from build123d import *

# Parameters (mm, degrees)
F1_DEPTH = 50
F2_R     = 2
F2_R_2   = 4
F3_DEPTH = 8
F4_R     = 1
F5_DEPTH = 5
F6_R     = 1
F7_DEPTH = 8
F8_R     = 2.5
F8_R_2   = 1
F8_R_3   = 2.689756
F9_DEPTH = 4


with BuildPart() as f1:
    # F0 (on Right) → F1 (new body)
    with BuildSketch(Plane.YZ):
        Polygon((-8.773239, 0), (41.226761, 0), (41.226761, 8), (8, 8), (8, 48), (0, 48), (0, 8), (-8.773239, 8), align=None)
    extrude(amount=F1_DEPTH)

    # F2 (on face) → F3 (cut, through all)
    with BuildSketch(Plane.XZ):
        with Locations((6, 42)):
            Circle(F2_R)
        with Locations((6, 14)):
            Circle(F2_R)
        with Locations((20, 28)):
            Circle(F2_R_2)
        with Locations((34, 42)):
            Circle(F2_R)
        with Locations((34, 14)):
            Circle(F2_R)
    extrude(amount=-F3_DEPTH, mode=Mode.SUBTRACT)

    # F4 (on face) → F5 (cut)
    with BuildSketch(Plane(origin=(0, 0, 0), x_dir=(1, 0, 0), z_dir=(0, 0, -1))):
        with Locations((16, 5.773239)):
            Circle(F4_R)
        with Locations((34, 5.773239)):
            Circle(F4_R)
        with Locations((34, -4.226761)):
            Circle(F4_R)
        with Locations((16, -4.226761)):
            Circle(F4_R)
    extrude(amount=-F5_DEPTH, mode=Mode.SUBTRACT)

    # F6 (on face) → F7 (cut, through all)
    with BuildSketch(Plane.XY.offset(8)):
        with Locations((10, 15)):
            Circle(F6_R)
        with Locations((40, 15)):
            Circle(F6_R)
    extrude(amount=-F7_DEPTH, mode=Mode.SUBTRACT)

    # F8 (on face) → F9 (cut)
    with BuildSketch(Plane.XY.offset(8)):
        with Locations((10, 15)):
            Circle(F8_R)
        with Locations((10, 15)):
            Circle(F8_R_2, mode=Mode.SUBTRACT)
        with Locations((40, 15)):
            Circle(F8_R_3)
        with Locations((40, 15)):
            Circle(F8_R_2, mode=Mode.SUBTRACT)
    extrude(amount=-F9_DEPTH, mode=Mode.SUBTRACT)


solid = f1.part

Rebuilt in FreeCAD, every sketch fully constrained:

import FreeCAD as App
import Part
import Sketcher
Q = App.Units.Quantity

doc = App.newDocument("Part")
body = doc.addObject("PartDesign::Body", "Body")

sketch1 = body.newObject("Sketcher::SketchObject", "Sketch")
sketch1.AttachmentSupport = (doc.getObject("YZ_Plane"), [""])
sketch1.MapMode = "FlatFace"
sketch1.addGeometry([
    Part.LineSegment(App.Vector(-9, 0, 0), App.Vector(41, 0, 0)),
    Part.LineSegment(App.Vector(41, 0, 0), App.Vector(41, 8, 0)),
    Part.LineSegment(App.Vector(41, 8, 0), App.Vector(8, 8, 0)),
    Part.LineSegment(App.Vector(8, 8, 0), App.Vector(8, 48, 0)),
    Part.LineSegment(App.Vector(8, 48, 0), App.Vector(0, 48, 0)),
    Part.LineSegment(App.Vector(0, 48, 0), App.Vector(0, 8, 0)),
    Part.LineSegment(App.Vector(0, 8, 0), App.Vector(-9, 8, 0)),
    Part.LineSegment(App.Vector(-9, 8, 0), App.Vector(-9, 0, 0)),
], False)
sketch1.addConstraint([
    Sketcher.Constraint("Coincident", 0, 2, 1, 1),
    Sketcher.Constraint("Coincident", 1, 2, 2, 1),
    Sketcher.Constraint("Coincident", 2, 2, 3, 1),
    Sketcher.Constraint("Coincident", 3, 2, 4, 1),
    Sketcher.Constraint("Coincident", 4, 2, 5, 1),
    Sketcher.Constraint("Coincident", 5, 2, 6, 1),
    Sketcher.Constraint("Coincident", 6, 2, 7, 1),
    Sketcher.Constraint("Coincident", 7, 2, 0, 1),
    Sketcher.Constraint("Horizontal", 0),
    Sketcher.Constraint("Vertical", 1),
    Sketcher.Constraint("Horizontal", 2),
    Sketcher.Constraint("Vertical", 3),
    Sketcher.Constraint("Horizontal", 4),
    Sketcher.Constraint("Vertical", 5),
    Sketcher.Constraint("Horizontal", 6),
    Sketcher.Constraint("Vertical", 7),
    Sketcher.Constraint("PointOnObject", 0, 2, -1),
    Sketcher.Constraint("PointOnObject", 4, 2, -2),
    Sketcher.Constraint("Horizontal", 2, 2, 5, 2),
    Sketcher.Constraint("Equal", 4, 1),
    Sketcher.Constraint("DistanceX", 0, 1, 0, 2, Q("50 mm")),
    Sketcher.Constraint("DistanceX", 4, 2, 4, 1, Q("8 mm")),
    Sketcher.Constraint("DistanceY", 3, 1, 3, 2, Q("40 mm")),
    Sketcher.Constraint("DistanceX", 2, 2, 2, 1, Q("33.226761 mm")),
])
pad1 = body.newObject("PartDesign::Pad", "Pad")
pad1.Profile = sketch1
pad1.Length = 50

sketch2 = body.newObject("Sketcher::SketchObject", "Sketch001")
sketch2.AttachmentSupport = (doc.getObject("XZ_Plane"), [""])
sketch2.MapMode = "FlatFace"
sketch2.addGeometry([
    Part.Circle(App.Vector(6, 42, 0), App.Vector(0, 0, 1), 2),
    Part.Circle(App.Vector(6, 14, 0), App.Vector(0, 0, 1), 2),
    Part.Circle(App.Vector(20, 28, 0), App.Vector(0, 0, 1), 4),
    Part.Circle(App.Vector(34, 42, 0), App.Vector(0, 0, 1), 2),
    Part.Circle(App.Vector(34, 14, 0), App.Vector(0, 0, 1), 2),
], False)
sketch2.addConstraint([
    Sketcher.Constraint("Equal", 0, 1),
    Sketcher.Constraint("Equal", 1, 3),
    Sketcher.Constraint("Equal", 3, 4),
    Sketcher.Constraint("Horizontal", 0, 3, 3, 3),
    Sketcher.Constraint("Horizontal", 1, 3, 4, 3),
    Sketcher.Constraint("Vertical", 0, 3, 1, 3),
    Sketcher.Constraint("Vertical", 3, 3, 4, 3),
    Sketcher.Constraint("Diameter", 0, Q("4 mm")),
    Sketcher.Constraint("Diameter", 2, Q("8 mm")),
    Sketcher.Constraint("DistanceX", -1, 1, 0, 3, Q("6 mm")),
    Sketcher.Constraint("DistanceY", -1, 1, 0, 3, Q("42 mm")),
    Sketcher.Constraint("DistanceY", -1, 1, 1, 3, Q("14 mm")),
    Sketcher.Constraint("DistanceX", -1, 1, 2, 3, Q("20 mm")),
    Sketcher.Constraint("DistanceY", -1, 1, 2, 3, Q("28 mm")),
    Sketcher.Constraint("DistanceX", -1, 1, 3, 3, Q("34 mm")),
])
pocket1 = body.newObject("PartDesign::Pocket", "Pocket")
pocket1.Profile = sketch2
pocket1.Type = "ThroughAll"

sketch3 = body.newObject("Sketcher::SketchObject", "Sketch002")
sketch3.AttachmentSupport = (doc.getObject("XY_Plane"), [""])
sketch3.MapMode = "FlatFace"
sketch3.addGeometry([
    Part.Circle(App.Vector(16, -5.8, 0), App.Vector(0, 0, 1), 1),
    Part.Circle(App.Vector(34, -5.8, 0), App.Vector(0, 0, 1), 1),
    Part.Circle(App.Vector(34, 4.2, 0), App.Vector(0, 0, 1), 1),
    Part.Circle(App.Vector(16, 4.2, 0), App.Vector(0, 0, 1), 1),
], False)
sketch3.addConstraint([
    Sketcher.Constraint("Equal", 0, 1),
    Sketcher.Constraint("Equal", 1, 2),
    Sketcher.Constraint("Equal", 2, 3),
    Sketcher.Constraint("Horizontal", 0, 3, 1, 3),
    Sketcher.Constraint("Horizontal", 2, 3, 3, 3),
    Sketcher.Constraint("Vertical", 1, 3, 2, 3),
    Sketcher.Constraint("Vertical", 0, 3, 3, 3),
    Sketcher.Constraint("Diameter", 0, Q("2 mm")),
    Sketcher.Constraint("DistanceX", -1, 1, 0, 3, Q("16 mm")),
    Sketcher.Constraint("DistanceX", -1, 1, 1, 3, Q("34 mm")),
    Sketcher.Constraint("DistanceY", 1, 3, 2, 3, Q("10 mm")),
    Sketcher.Constraint("DistanceY", 0, 3, -1, 1, Q("5.773239 mm")),
])
pocket2 = body.newObject("PartDesign::Pocket", "Pocket001")
pocket2.Profile = sketch3
pocket2.Length = 5
pocket2.Reversed = True

sketch4 = body.newObject("Sketcher::SketchObject", "Sketch003")
sketch4.AttachmentSupport = (doc.getObject("XY_Plane"), [""])
sketch4.MapMode = "FlatFace"
sketch4.AttachmentOffset = App.Placement(App.Vector(0, 0, 8), App.Rotation())
sketch4.addGeometry([
    Part.Circle(App.Vector(10, 15, 0), App.Vector(0, 0, 1), 1),
    Part.Circle(App.Vector(40, 15, 0), App.Vector(0, 0, 1), 1),
], False)
sketch4.addConstraint([
    Sketcher.Constraint("Equal", 0, 1),
    Sketcher.Constraint("Horizontal", 0, 3, 1, 3),
    Sketcher.Constraint("Diameter", 0, Q("2 mm")),
    Sketcher.Constraint("DistanceX", -1, 1, 0, 3, Q("10 mm")),
    Sketcher.Constraint("DistanceY", -1, 1, 0, 3, Q("15 mm")),
    Sketcher.Constraint("DistanceX", -1, 1, 1, 3, Q("40 mm")),
])
pocket3 = body.newObject("PartDesign::Pocket", "Pocket002")
pocket3.Profile = sketch4
pocket3.Type = "ThroughAll"

sketch5 = body.newObject("Sketcher::SketchObject", "Sketch004")
sketch5.AttachmentSupport = (doc.getObject("XY_Plane"), [""])
sketch5.MapMode = "FlatFace"
sketch5.AttachmentOffset = App.Placement(App.Vector(0, 0, 8), App.Rotation())
sketch5.addGeometry([
    Part.Circle(App.Vector(10, 15, 0), App.Vector(0, 0, 1), 2.5),
    Part.Circle(App.Vector(10, 15, 0), App.Vector(0, 0, 1), 1),
    Part.Circle(App.Vector(40, 15, 0), App.Vector(0, 0, 1), 2.7),
    Part.Circle(App.Vector(40, 15, 0), App.Vector(0, 0, 1), 1),
], False)
sketch5.addConstraint([
    Sketcher.Constraint("Coincident", 1, 3, 0, 3),
    Sketcher.Constraint("Coincident", 3, 3, 2, 3),
    Sketcher.Constraint("Equal", 1, 3),
    Sketcher.Constraint("Horizontal", 1, 3, 2, 3),
    Sketcher.Constraint("Diameter", 0, Q("5 mm")),
    Sketcher.Constraint("Diameter", 1, Q("2 mm")),
    Sketcher.Constraint("DistanceX", -1, 1, 0, 3, Q("10 mm")),
    Sketcher.Constraint("DistanceY", -1, 1, 0, 3, Q("15 mm")),
    Sketcher.Constraint("DistanceX", -1, 1, 2, 3, Q("40 mm")),
    Sketcher.Constraint("Diameter", 2, Q("5.379512 mm")),
])
pocket4 = body.newObject("PartDesign::Pocket", "Pocket003")
pocket4.Profile = sketch5
pocket4.Length = 4

doc.recompute()
